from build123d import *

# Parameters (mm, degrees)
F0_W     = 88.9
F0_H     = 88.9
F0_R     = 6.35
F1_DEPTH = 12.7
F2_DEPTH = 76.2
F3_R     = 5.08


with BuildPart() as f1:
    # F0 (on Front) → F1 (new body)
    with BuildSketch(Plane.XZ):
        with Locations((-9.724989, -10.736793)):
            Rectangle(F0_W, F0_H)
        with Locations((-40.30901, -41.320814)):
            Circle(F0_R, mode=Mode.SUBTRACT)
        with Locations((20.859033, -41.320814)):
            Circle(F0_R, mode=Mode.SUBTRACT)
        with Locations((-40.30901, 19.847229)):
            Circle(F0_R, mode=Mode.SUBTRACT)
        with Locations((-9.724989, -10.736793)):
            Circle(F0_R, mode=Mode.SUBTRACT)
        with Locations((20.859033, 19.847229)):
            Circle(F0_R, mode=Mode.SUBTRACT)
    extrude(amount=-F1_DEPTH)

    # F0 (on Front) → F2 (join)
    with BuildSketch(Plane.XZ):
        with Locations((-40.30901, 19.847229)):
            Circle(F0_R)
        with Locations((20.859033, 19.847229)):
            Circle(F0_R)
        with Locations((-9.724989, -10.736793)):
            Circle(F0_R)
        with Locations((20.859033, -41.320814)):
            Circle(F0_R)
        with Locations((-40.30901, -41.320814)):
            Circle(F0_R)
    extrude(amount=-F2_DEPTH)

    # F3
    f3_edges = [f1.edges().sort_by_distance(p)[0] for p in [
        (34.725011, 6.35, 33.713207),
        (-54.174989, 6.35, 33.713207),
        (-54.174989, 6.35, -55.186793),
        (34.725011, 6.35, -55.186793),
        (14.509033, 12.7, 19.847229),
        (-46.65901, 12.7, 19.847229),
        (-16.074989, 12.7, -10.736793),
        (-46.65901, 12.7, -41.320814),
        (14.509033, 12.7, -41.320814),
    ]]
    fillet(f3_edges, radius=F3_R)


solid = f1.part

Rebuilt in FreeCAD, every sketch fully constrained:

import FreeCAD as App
import Part
import Sketcher
from FreeCAD import Vector
Q = App.Units.Quantity


def edges_at(feature, points):
    """Names of the edges that pass closest to the given points."""
    edges = feature.Shape.Edges
    near = lambda p: min(range(len(edges)), key=lambda i: edges[i].distToShape(Part.Vertex(*p))[0])
    return sorted({f"Edge{near(p) + 1}" for p in points})


def add_polygon(sketch, points):
    """Adds a closed chain of lines whose ends are joined by coincident constraints."""
    first, n = sketch.GeometryCount, len(points)
    for a, b in zip(points, points[1:] + points[:1]):
        sketch.addGeometry(Part.LineSegment(App.Vector(*a, 0), App.Vector(*b, 0)), False)
    for i in range(n):
        sketch.addConstraint(Sketcher.Constraint("Coincident", first + i, 2, first + (i + 1) % n, 1))

doc = App.newDocument("Part")
body = doc.addObject("PartDesign::Body", "Body")

# Sketch on XZ plane
sketch1 = body.newObject("Sketcher::SketchObject", "Sketch")
sketch1.AttachmentSupport = (doc.getObject("XZ_Plane"), [""])
sketch1.MapMode = "FlatFace"
add_polygon(sketch1, [(-54, 34), (-54, -55), (35, -55), (35, 34)])  # lines 0-3
sketch1.addGeometry(Part.Circle(Vector(-40, -41, 0), Vector(0, 0, 1), 6), False)  # 4
sketch1.addGeometry(Part.Circle(Vector(-10, -11, 0), Vector(0, 0, 1), 6), False)  # 5
sketch1.addGeometry(Part.Circle(Vector(21, -41, 0), Vector(0, 0, 1), 6), False)  # 6
sketch1.addGeometry(Part.Circle(Vector(-40, 20, 0), Vector(0, 0, 1), 6), False)  # 7
sketch1.addGeometry(Part.Circle(Vector(21, 20, 0), Vector(0, 0, 1), 6), False)  # 8
sketch1.addConstraint([
    Sketcher.Constraint("Vertical", 0),
    Sketcher.Constraint("Horizontal", 1),
    Sketcher.Constraint("Vertical", 2),
    Sketcher.Constraint("Horizontal", 3),
    Sketcher.Constraint("Equal", 4, 5),
    Sketcher.Constraint("Equal", 5, 6),
    Sketcher.Constraint("Equal", 6, 7),
    Sketcher.Constraint("Equal", 7, 8),
    Sketcher.Constraint("Horizontal", 4, 3, 6, 3),
    Sketcher.Constraint("Horizontal", 7, 3, 8, 3),
    Sketcher.Constraint("Vertical", 4, 3, 7, 3),
    Sketcher.Constraint("Vertical", 6, 3, 8, 3),
    Sketcher.Constraint("Equal", 3, 0),
    Sketcher.Constraint("Diameter", 4, Q("0.5 in")),
    Sketcher.Constraint("DistanceX", 1, 1, 1, 2, Q("3.5 in")),
    Sketcher.Constraint("DistanceX", 0, 2, 5, 3, Q("1.75 in")),
    Sketcher.Constraint("DistanceY", 0, 2, 5, 3, Q("1.75 in")),
    Sketcher.Constraint("DistanceX", 4, 3, -1, 1, 40.30901),
    Sketcher.Constraint("DistanceX", 5, 3, -1, 1, 9.724989),
    Sketcher.Constraint("DistanceY", -1, 1, 7, 3, 19.847229),
    Sketcher.Constraint("DistanceY", 4, 3, 5, 3, 30.584021),
    Sketcher.Constraint("DistanceY", 5, 3, 7, 3, 30.584022),
    Sketcher.Constraint("DistanceX", 0, 2, 6, 3, 75.034022),
])
pad1 = body.newObject("PartDesign::Pad", "Pad")
pad1.Profile = sketch1
pad1.Length = Q("0.5 in")
pad1.Reversed = True

# Sketch on XZ plane
sketch2 = body.newObject("Sketcher::SketchObject", "Sketch001")
sketch2.AttachmentSupport = (doc.getObject("XZ_Plane"), [""])
sketch2.MapMode = "FlatFace"
sketch2.addGeometry([
    Part.Circle(Vector(-40, 20, 0), Vector(0, 0, 1), 6),  # 0
    Part.Circle(Vector(21, 20, 0), Vector(0, 0, 1), 6),  # 1
    Part.Circle(Vector(-10, -11, 0), Vector(0, 0, 1), 6),  # 2
    Part.Circle(Vector(21, -41, 0), Vector(0, 0, 1), 6),  # 3
    Part.Circle(Vector(-40, -41, 0), Vector(0, 0, 1), 6),  # 4
], False)
sketch2.addConstraint([
    Sketcher.Constraint("Equal", 0, 1),
    Sketcher.Constraint("Equal", 1, 2),
    Sketcher.Constraint("Equal", 2, 3),
    Sketcher.Constraint("Equal", 3, 4),
    Sketcher.Constraint("Horizontal", 0, 3, 1, 3),
    Sketcher.Constraint("Horizontal", 3, 3, 4, 3),
    Sketcher.Constraint("Vertical", 1, 3, 3, 3),
    Sketcher.Constraint("Vertical", 0, 3, 4, 3),
    Sketcher.Constraint("Diameter", 0, Q("0.5 in")),
    Sketcher.Constraint("DistanceX", 0, 3, -1, 1, 40.30901),
    Sketcher.Constraint("DistanceY", -1, 1, 0, 3, 19.847229),
    Sketcher.Constraint("DistanceX", 2, 3, -1, 1, 9.724989),
    Sketcher.Constraint("DistanceY", 2, 3, 0, 3, 30.584022),
    Sketcher.Constraint("DistanceY", 3, 3, 2, 3, 30.584021),
    Sketcher.Constraint("DistanceX", -1, 1, 1, 3, 20.859033),
])
pad2 = body.newObject("PartDesign::Pad", "Pad001")
pad2.Profile = sketch2
pad2.Length = Q("3 in")
pad2.Reversed = True
doc.recompute()

fillet = body.newObject("PartDesign::Fillet", "Fillet")
fillet.Base = (pad2, edges_at(pad2, [
    (34.725, 6.35, 33.713),
    (-54.175, 6.35, 33.713),
    (-54.175, 6.35, -55.187),
    (34.725, 6.35, -55.187),
    (14.509, 12.7, 19.847),
    (-46.659, 12.7, 19.847),
    (-16.075, 12.7, -10.737),
    (-46.659, 12.7, -41.321),
    (14.509, 12.7, -41.321),
]))
fillet.Radius = Q("0.2 in")

doc.recompute()
